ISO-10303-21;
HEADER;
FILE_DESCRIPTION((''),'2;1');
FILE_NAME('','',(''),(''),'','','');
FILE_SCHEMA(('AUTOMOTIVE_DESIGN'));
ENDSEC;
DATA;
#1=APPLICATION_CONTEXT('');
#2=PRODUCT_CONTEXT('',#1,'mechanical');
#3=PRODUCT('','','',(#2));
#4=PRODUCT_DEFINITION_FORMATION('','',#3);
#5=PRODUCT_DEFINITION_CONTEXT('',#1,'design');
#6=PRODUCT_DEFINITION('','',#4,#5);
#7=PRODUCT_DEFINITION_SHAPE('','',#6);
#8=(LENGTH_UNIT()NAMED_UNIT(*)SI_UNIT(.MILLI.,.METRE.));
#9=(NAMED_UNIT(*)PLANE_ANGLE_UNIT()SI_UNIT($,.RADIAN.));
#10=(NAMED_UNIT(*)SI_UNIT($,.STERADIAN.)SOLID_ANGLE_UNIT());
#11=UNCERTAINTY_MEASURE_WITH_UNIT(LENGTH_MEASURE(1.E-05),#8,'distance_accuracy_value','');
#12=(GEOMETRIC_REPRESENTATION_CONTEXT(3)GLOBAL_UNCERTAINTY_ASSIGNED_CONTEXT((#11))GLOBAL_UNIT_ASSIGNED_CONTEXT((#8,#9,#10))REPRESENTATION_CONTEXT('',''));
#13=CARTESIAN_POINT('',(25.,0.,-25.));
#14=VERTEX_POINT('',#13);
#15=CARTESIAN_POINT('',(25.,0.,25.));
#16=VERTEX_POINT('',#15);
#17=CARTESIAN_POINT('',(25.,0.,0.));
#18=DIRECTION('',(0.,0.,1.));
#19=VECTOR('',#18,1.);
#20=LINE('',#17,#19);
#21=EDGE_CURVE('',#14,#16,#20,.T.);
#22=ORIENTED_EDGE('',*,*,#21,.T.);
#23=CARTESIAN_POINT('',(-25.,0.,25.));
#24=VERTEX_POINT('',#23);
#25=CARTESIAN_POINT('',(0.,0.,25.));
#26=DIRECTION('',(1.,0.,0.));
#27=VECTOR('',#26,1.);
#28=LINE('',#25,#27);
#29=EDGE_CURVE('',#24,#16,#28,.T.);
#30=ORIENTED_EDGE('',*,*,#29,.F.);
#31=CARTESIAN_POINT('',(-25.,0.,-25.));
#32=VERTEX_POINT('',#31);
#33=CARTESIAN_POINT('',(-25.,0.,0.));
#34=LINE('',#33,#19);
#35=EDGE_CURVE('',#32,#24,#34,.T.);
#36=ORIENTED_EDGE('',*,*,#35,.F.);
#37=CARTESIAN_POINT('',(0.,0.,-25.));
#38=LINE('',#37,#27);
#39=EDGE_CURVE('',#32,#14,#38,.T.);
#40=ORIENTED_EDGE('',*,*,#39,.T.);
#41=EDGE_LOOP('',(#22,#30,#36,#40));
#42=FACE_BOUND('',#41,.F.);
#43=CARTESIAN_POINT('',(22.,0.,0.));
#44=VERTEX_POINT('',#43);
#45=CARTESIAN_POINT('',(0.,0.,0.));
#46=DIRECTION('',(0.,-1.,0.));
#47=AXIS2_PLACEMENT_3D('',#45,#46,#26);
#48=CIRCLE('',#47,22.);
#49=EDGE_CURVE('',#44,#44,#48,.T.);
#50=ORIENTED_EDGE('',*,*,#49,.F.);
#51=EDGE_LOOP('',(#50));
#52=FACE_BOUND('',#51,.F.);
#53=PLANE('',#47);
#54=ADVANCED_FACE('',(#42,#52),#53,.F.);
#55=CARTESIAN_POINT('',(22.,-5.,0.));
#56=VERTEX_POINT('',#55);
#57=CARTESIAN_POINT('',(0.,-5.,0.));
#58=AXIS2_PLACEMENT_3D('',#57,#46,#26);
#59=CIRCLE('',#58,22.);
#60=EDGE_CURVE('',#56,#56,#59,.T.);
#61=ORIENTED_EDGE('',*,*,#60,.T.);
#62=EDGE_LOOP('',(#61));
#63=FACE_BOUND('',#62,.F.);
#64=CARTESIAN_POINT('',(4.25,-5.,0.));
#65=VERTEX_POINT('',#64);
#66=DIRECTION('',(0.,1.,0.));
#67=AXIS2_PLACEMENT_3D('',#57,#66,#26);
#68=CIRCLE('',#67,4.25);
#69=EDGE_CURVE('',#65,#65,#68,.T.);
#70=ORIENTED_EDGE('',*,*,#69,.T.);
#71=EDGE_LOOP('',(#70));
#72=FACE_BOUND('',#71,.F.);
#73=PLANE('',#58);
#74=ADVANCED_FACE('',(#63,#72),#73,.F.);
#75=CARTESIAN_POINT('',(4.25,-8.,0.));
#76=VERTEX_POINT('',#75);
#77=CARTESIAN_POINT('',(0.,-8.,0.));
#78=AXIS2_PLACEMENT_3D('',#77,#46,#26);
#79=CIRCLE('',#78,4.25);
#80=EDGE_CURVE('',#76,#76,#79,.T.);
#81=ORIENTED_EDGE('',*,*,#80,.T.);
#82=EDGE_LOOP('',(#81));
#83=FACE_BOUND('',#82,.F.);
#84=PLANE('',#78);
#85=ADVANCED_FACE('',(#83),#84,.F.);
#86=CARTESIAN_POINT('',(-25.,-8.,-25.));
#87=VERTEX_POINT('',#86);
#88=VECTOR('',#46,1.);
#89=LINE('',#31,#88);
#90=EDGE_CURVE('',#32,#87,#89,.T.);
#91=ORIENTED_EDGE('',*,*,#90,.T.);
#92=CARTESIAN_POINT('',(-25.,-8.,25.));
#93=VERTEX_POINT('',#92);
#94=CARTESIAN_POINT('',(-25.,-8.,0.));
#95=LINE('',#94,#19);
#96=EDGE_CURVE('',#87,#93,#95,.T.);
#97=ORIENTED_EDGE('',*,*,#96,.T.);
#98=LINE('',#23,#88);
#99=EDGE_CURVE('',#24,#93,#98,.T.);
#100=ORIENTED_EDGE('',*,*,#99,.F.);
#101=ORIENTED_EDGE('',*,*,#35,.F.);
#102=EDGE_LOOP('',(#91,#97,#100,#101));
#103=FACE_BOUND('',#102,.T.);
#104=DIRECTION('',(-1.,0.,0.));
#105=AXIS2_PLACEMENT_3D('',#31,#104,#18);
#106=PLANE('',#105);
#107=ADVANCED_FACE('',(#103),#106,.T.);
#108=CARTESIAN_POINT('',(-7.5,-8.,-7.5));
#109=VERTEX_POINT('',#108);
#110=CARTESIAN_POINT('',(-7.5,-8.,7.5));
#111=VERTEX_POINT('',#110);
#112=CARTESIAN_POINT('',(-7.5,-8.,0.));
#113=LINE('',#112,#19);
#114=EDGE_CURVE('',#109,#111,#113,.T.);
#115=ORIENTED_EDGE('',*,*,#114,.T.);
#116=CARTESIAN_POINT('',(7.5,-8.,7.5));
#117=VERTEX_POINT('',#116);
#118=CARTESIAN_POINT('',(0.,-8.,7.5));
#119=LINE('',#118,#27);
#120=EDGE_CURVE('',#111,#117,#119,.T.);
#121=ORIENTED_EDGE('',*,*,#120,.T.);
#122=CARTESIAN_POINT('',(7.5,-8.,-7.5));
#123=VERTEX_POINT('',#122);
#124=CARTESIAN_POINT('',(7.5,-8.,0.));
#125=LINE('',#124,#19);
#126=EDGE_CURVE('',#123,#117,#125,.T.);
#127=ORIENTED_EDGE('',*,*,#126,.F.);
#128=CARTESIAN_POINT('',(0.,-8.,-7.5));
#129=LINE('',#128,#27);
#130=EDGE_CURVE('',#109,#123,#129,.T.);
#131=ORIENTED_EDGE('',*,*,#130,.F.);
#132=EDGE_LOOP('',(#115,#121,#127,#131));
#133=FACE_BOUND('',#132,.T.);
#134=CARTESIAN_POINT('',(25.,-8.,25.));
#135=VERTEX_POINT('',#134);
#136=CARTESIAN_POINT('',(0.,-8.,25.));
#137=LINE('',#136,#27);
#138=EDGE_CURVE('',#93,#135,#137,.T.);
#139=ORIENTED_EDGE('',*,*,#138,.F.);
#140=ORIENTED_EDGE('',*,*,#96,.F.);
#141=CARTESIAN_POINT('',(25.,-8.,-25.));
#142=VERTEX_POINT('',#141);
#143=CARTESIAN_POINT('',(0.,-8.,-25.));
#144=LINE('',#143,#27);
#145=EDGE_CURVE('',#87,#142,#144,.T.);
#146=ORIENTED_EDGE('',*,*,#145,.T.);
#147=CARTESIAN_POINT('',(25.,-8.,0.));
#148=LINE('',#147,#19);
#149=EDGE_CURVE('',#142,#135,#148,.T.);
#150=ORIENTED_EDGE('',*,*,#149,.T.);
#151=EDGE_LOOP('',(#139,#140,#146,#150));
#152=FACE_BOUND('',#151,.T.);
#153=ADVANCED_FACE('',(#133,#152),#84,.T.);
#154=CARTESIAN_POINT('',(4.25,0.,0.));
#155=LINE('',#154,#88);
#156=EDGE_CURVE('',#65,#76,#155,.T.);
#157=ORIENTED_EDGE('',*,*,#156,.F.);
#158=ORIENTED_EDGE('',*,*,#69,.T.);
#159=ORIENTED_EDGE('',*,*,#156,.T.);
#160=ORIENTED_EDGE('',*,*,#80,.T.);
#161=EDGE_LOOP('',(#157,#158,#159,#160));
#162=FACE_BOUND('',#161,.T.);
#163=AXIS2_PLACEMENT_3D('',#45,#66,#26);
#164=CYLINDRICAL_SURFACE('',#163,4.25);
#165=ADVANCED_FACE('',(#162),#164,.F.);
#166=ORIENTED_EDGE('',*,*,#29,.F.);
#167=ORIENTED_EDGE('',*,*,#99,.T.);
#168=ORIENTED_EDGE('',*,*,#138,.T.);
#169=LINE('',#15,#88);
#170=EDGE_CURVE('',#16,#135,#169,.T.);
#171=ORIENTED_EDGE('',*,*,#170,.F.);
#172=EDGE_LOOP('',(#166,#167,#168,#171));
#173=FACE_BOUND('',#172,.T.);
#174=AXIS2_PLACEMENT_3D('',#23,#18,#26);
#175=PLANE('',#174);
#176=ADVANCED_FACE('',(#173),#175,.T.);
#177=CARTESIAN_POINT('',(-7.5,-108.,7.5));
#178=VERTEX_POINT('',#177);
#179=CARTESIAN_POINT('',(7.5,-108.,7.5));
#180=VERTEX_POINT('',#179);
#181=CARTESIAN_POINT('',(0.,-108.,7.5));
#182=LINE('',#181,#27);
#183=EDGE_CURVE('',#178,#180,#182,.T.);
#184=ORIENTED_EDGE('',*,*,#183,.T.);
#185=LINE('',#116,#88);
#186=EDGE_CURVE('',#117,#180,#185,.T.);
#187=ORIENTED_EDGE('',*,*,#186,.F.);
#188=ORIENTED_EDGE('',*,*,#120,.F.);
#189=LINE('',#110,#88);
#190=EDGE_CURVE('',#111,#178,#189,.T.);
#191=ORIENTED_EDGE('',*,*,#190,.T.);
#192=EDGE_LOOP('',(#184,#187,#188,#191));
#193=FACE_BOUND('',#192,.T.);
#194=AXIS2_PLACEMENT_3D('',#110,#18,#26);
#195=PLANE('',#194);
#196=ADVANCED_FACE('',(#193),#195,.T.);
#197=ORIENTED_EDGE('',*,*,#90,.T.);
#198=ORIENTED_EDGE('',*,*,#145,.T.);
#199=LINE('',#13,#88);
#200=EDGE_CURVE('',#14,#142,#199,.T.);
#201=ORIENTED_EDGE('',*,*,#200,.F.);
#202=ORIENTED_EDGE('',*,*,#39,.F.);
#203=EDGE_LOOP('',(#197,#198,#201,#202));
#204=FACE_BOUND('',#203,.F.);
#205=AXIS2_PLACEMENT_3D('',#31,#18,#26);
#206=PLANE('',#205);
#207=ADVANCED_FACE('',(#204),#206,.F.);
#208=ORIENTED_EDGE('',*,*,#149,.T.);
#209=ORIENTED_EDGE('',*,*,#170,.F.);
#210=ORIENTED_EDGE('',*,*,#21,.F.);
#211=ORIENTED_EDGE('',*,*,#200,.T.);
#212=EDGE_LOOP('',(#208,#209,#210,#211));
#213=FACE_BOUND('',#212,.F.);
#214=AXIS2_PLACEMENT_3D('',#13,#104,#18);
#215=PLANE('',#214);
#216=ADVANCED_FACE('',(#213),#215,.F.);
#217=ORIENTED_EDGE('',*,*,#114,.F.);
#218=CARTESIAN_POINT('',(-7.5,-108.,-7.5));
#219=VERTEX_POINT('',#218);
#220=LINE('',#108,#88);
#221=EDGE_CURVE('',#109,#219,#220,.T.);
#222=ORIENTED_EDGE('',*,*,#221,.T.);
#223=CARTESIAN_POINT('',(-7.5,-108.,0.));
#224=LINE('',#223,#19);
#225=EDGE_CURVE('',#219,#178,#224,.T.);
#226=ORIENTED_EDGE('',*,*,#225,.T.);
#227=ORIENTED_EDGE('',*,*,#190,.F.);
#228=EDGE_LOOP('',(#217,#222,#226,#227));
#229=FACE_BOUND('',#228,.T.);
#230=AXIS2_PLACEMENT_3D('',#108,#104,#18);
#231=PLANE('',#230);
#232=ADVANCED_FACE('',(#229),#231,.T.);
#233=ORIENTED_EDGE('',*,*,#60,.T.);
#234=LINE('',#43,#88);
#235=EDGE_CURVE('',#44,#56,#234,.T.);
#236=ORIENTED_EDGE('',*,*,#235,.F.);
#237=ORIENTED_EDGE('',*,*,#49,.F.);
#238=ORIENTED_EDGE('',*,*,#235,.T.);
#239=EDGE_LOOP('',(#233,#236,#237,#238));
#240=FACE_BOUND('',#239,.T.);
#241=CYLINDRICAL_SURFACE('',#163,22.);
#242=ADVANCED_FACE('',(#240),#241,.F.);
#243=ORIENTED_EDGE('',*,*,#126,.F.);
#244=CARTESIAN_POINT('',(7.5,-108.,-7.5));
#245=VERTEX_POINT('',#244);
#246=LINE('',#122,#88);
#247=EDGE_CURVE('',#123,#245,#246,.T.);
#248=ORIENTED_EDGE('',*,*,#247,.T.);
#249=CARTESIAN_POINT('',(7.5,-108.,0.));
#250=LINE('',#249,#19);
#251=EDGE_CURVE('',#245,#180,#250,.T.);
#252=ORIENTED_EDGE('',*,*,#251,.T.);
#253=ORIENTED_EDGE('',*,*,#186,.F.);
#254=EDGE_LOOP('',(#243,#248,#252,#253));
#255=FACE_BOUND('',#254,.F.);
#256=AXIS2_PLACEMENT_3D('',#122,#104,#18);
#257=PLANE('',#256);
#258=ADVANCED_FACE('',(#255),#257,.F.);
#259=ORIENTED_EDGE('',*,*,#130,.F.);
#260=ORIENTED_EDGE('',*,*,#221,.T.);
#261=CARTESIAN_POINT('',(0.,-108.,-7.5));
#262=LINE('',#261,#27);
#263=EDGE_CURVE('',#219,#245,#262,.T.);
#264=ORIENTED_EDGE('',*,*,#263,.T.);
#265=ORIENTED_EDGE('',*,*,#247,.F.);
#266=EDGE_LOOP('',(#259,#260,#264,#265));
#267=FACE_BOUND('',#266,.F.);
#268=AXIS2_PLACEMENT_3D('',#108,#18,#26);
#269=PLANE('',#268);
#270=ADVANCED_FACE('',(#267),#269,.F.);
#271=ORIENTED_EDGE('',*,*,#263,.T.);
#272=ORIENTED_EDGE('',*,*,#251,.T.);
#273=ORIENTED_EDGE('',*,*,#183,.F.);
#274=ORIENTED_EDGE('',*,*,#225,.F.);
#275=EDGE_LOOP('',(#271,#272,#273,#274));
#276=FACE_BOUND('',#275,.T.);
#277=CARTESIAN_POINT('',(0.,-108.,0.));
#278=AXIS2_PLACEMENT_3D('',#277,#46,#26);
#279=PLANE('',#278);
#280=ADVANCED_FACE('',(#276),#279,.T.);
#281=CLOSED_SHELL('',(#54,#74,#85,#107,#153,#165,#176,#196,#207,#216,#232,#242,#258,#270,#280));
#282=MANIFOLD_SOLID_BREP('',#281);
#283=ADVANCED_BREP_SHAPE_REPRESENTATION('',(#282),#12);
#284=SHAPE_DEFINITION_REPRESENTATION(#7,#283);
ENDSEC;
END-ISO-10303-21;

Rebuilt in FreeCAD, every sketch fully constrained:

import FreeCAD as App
import Part
import Sketcher
from FreeCAD import Vector
Q = App.Units.Quantity


def add_polygon(sketch, points):
    """Adds a closed chain of lines whose ends are joined by coincident constraints."""
    first, n = sketch.GeometryCount, len(points)
    for a, b in zip(points, points[1:] + points[:1]):
        sketch.addGeometry(Part.LineSegment(App.Vector(*a, 0), App.Vector(*b, 0)), False)
    for i in range(n):
        sketch.addConstraint(Sketcher.Constraint("Coincident", first + i, 2, first + (i + 1) % n, 1))

doc = App.newDocument("Part")
body = doc.addObject("PartDesign::Body", "Body")

sketch1 = body.newObject("Sketcher::SketchObject", "Sketch")
sketch1.AttachmentSupport = (doc.getObject("XZ_Plane"), [""])
sketch1.MapMode = "FlatFace"
add_polygon(sketch1, [(-25, 25), (-25, -25), (25, -25), (25, 25)])
sketch1.addGeometry(Part.Circle(Vector(0, 0, 0), Vector(0, 0, 1), 4.2), False)
sketch1.addConstraint([
    Sketcher.Constraint("Vertical", 0),
    Sketcher.Constraint("Horizontal", 1),
    Sketcher.Constraint("Vertical", 2),
    Sketcher.Constraint("Horizontal", 3),
    Sketcher.Constraint("Coincident", 4, 3, -1, 1),
    Sketcher.Constraint("Symmetric", 0, 2, 2, 2, -1, 1),
    Sketcher.Constraint("Equal", 3, 0),
    Sketcher.Constraint("Diameter", 4, Q("8.5 mm")),
    Sketcher.Constraint("DistanceX", 1, 1, 1, 2, Q("50 mm")),
])
pad1 = body.newObject("PartDesign::Pad", "Pad")
pad1.Profile = sketch1
pad1.Length = 8

sketch2 = body.newObject("Sketcher::SketchObject", "Sketch001")
sketch2.AttachmentSupport = (doc.getObject("XZ_Plane"), [""])
sketch2.MapMode = "FlatFace"
sketch2.addGeometry(Part.Circle(Vector(0, 0, 0), Vector(0, 0, 1), 22), False)
sketch2.addConstraint([
    Sketcher.Constraint("Coincident", 0, 3, -1, 1),
    Sketcher.Constraint("Diameter", 0, Q("44 mm")),
])
pocket1 = body.newObject("PartDesign::Pocket", "Pocket")
pocket1.Profile = sketch2
pocket1.Length = 5
pocket1.Reversed = True

sketch3 = body.newObject("Sketcher::SketchObject", "Sketch002")
sketch3.AttachmentSupport = (doc.getObject("XZ_Plane"), [""])
sketch3.MapMode = "FlatFace"
sketch3.AttachmentOffset = App.Placement(Vector(0, 0, 8), App.Rotation())
add_polygon(sketch3, [(-8, 8), (-8, -8), (8, -8), (8, 8)])
sketch3.addConstraint([
    Sketcher.Constraint("Vertical", 0),
    Sketcher.Constraint("Horizontal", 1),
    Sketcher.Constraint("Vertical", 2),
    Sketcher.Constraint("Horizontal", 3),
    Sketcher.Constraint("Symmetric", 0, 2, 2, 2, -1, 1),
    Sketcher.Constraint("Equal", 3, 0),
    Sketcher.Constraint("DistanceX", 1, 1, 1, 2, Q("15 mm")),
])
pad2 = body.newObject("PartDesign::Pad", "Pad001")
pad2.Profile = sketch3
pad2.Length = 100

doc.recompute()
